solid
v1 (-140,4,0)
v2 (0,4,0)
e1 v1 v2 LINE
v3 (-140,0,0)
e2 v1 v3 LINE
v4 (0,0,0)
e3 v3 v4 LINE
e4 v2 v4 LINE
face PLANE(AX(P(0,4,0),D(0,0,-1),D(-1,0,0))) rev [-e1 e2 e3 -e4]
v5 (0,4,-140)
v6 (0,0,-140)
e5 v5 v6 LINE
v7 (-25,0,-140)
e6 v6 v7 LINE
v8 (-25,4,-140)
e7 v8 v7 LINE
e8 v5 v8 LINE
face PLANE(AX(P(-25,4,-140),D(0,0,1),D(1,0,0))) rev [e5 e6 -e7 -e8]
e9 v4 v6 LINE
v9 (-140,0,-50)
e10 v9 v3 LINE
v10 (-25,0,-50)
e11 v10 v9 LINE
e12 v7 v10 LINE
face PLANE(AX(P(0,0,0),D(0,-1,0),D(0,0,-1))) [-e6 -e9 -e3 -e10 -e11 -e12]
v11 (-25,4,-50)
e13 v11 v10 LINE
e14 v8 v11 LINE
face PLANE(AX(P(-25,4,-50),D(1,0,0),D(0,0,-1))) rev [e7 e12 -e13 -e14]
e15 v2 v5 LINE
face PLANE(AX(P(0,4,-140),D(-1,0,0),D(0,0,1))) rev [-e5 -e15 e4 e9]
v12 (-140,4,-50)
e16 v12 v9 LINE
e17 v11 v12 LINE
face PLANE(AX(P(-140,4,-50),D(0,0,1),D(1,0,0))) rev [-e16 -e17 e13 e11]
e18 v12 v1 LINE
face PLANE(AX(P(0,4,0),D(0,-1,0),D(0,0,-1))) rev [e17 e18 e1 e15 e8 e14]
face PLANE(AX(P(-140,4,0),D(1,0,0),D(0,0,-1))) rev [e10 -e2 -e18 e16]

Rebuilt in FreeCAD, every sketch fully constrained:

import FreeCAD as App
import Part
import Sketcher
from FreeCAD import Vector

doc = App.newDocument("Part")
body = doc.addObject("PartDesign::Body", "Body")

# Sketch on XZ plane
sketch1 = body.newObject("Sketcher::SketchObject", "Sketch")
sketch1.AttachmentSupport = (doc.getObject("XZ_Plane"), [""])
sketch1.MapMode = "FlatFace"
sketch1.addGeometry([
    Part.LineSegment(Vector(-140, 0, 0), Vector(0, 0, 0)),  # 0
    Part.LineSegment(Vector(0, 0, 0), Vector(0, -140, 0)),  # 1
    Part.LineSegment(Vector(0, -140, 0), Vector(-25, -140, 0)),  # 2
    Part.LineSegment(Vector(-25, -140, 0), Vector(-25, -50, 0)),  # 3
    Part.LineSegment(Vector(-25, -50, 0), Vector(-140, -50, 0)),  # 4
    Part.LineSegment(Vector(-140, -50, 0), Vector(-140, 0, 0)),  # 5
], False)
sketch1.addConstraint([
    Sketcher.Constraint("Coincident", 0, 2, 1, 1),
    Sketcher.Constraint("Coincident", 1, 2, 2, 1),
    Sketcher.Constraint("Coincident", 2, 2, 3, 1),
    Sketcher.Constraint("Coincident", 3, 2, 4, 1),
    Sketcher.Constraint("Coincident", 4, 2, 5, 1),
    Sketcher.Constraint("Coincident", 5, 2, 0, 1),
    Sketcher.Constraint("Horizontal", 0),
    Sketcher.Constraint("Vertical", 1),
    Sketcher.Constraint("Horizontal", 2),
    Sketcher.Constraint("Vertical", 3),
    Sketcher.Constraint("Horizontal", 4),
    Sketcher.Constraint("Vertical", 5),
    Sketcher.Constraint("Coincident", 0, 2, -1, 1),
    Sketcher.Constraint("Equal", 0, 1),
    Sketcher.Constraint("DistanceX", 0, 1, 0, 2, 140.0),
    Sketcher.Constraint("DistanceX", 2, 2, 2, 1, 25.0),
    Sketcher.Constraint("DistanceY", 3, 1, 3, 2, 90.0),
])
pad1 = body.newObject("PartDesign::Pad", "Pad")
pad1.Profile = sketch1
pad1.Length = 4
pad1.Reversed = True

doc.recompute()
